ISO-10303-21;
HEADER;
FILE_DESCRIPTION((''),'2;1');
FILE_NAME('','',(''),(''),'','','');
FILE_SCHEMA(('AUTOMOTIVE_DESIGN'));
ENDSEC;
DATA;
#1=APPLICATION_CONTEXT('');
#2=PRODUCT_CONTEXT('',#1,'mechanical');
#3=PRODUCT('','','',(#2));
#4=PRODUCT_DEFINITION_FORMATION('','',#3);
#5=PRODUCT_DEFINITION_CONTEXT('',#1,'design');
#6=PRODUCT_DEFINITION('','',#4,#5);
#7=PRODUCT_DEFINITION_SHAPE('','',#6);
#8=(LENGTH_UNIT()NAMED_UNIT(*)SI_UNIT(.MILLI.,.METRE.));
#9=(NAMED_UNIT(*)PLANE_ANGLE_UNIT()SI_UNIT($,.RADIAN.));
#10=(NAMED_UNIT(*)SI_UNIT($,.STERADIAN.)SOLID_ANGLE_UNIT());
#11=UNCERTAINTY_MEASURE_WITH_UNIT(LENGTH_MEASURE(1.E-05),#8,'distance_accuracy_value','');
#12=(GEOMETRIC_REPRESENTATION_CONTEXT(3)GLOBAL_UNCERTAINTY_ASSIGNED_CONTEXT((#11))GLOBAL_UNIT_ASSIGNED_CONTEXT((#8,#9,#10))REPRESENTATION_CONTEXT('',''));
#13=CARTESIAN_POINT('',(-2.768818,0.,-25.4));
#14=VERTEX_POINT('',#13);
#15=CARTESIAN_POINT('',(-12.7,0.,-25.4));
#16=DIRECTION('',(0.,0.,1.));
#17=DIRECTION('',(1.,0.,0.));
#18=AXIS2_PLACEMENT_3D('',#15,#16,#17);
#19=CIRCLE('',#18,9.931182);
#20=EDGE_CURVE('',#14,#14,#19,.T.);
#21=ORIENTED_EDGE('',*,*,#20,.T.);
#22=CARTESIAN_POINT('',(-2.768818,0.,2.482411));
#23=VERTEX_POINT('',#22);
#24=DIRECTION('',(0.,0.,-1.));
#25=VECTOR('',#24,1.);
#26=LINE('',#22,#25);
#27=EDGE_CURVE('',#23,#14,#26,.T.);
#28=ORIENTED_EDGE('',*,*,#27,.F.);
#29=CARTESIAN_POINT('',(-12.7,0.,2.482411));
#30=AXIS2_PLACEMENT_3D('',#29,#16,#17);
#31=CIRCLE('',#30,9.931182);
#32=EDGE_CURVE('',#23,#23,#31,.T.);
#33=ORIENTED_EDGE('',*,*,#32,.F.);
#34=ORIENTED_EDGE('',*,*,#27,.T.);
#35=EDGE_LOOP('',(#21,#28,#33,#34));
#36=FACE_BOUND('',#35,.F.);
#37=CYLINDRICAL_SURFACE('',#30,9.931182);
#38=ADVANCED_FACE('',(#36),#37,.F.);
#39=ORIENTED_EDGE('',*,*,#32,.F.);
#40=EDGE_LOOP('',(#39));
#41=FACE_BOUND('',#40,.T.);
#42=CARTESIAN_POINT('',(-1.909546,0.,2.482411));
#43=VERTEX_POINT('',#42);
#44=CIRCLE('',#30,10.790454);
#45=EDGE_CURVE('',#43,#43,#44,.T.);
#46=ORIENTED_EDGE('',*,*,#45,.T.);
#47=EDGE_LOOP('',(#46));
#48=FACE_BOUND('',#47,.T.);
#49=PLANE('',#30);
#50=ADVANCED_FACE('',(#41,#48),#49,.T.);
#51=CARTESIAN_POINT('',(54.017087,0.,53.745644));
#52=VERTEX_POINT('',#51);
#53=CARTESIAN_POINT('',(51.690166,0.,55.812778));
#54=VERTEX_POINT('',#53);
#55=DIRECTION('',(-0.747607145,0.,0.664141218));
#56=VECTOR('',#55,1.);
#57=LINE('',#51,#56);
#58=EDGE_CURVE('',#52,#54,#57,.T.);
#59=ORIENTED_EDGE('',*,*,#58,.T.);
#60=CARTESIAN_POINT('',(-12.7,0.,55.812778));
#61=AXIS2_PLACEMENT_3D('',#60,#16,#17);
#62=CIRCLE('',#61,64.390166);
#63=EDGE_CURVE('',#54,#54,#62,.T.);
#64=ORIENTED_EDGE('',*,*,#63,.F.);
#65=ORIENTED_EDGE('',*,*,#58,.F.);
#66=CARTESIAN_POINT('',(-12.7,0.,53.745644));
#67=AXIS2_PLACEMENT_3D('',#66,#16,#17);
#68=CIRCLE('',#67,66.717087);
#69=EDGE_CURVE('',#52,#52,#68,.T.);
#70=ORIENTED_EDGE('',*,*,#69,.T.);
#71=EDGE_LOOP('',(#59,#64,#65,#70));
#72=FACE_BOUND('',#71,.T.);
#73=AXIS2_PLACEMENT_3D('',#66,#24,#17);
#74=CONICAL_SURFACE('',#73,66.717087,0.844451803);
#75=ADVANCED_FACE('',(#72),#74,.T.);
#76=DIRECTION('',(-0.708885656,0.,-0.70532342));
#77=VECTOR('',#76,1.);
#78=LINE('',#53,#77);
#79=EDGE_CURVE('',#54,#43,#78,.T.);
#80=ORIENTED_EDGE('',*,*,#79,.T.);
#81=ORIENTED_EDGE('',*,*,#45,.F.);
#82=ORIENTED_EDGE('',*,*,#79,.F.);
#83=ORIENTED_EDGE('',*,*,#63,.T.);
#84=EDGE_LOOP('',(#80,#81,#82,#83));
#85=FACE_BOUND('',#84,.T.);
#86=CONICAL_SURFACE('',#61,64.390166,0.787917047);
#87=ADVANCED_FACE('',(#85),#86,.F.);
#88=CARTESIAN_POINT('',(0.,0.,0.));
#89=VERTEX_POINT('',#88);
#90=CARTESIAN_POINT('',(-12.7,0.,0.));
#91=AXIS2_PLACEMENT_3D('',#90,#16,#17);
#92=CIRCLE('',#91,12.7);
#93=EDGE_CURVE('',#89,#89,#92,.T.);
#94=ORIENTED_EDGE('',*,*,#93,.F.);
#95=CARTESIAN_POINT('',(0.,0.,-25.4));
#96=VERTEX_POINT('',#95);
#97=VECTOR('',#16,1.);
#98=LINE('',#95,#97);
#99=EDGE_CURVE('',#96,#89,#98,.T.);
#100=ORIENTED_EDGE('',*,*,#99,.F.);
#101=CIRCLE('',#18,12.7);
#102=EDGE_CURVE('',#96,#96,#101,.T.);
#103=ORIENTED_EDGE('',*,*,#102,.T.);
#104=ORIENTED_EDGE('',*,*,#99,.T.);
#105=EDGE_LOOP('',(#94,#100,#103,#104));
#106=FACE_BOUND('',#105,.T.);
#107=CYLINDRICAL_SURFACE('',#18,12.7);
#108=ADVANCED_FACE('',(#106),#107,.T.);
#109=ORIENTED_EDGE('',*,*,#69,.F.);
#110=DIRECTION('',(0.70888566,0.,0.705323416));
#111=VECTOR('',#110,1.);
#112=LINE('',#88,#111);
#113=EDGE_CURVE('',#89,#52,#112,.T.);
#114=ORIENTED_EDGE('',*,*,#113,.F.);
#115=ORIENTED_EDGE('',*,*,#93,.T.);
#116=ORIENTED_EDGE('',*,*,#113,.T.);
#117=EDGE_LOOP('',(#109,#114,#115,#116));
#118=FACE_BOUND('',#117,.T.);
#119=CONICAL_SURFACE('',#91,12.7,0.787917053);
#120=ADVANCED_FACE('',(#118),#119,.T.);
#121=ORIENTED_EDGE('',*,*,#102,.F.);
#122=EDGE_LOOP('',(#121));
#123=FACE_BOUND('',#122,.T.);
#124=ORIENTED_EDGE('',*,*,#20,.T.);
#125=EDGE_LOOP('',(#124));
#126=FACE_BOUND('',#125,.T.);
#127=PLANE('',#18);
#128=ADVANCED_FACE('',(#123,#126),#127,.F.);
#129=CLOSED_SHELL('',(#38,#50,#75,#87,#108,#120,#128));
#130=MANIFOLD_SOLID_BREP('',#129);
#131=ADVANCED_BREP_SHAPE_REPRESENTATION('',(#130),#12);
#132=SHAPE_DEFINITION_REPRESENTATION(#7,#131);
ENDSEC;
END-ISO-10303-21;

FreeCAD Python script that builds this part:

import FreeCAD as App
import Part
import Sketcher
from FreeCAD import Vector
Q = App.Units.Quantity


def add_polygon(sketch, points):
    """Adds a closed chain of lines whose ends are joined by coincident constraints."""
    first, n = sketch.GeometryCount, len(points)
    for a, b in zip(points, points[1:] + points[:1]):
        sketch.addGeometry(Part.LineSegment(App.Vector(*a, 0), App.Vector(*b, 0)), False)
    for i in range(n):
        sketch.addConstraint(Sketcher.Constraint("Coincident", first + i, 2, first + (i + 1) % n, 1))

doc = App.newDocument("Part")
params = doc.addObject("Spreadsheet::Sheet", "Params")
for row, (alias, value) in enumerate([
    ("sketch1_height", "1 in"),
    ("sketch1_length", "3 in"),
    ("sketch1_width", "0.5 in"),
    ("revolution_angle", "360 deg"),
    ("pocket1_length", "2 in"),
], start=1):
    params.set(f"A{row}", alias)
    params.set(f"B{row}", "=" + value)
    params.setAlias(f"B{row}", alias)

body = doc.addObject("PartDesign::Body", "Body")

# Sketch on XZ plane
sketch1 = doc.addObject("Sketcher::SketchObject", "Sketch")
body.addObject(sketch1)
sketch1.AttachmentSupport = (doc.XZ_Plane, [""])
sketch1.MapMode = "FlatFace"
add_polygon(sketch1, [(0, -25.4), (0, 0), (54.017087, 53.745644), (51.690166, 55.812778), (-1.909546, 2.482411), (-12.7, 2.482411), (-12.7, -25.4)])  # lines 0-6
sketch1.addGeometry(Part.LineSegment(Vector(-12.7, -25.4, 0), Vector(-12.7, 55.812778, 0)), True)  # axis
sketch1.addConstraint([
    Sketcher.Constraint("Vertical", 0),
    Sketcher.Constraint("Horizontal", 4),
    Sketcher.Constraint("Vertical", 5),
    Sketcher.Constraint("Horizontal", 6),
    Sketcher.Constraint("Vertical", 7),
    Sketcher.Constraint("Coincident", 0, 2, -1, 1),
    Sketcher.Constraint("Coincident", 7, 1, 5, 2),
    Sketcher.Constraint("DistanceY", 0, 1, 0, 2, Q("1 in")),
    Sketcher.Constraint("Distance", 1, Q("3 in")),
    Sketcher.Constraint("DistanceX", 6, 1, 6, 2, Q("0.5 in")),
    Sketcher.Constraint("DistanceY", 5, 2, 5, 1, Q("27.882411 mm")),
    Sketcher.Constraint("DistanceY", 7, 1, 7, 2, Q("81.212778 mm")),
    Sketcher.Constraint("Distance", 2, Q("3.112492 mm")),
    Sketcher.Constraint("DistanceX", 4, 2, 4, 1, Q("10.790454 mm")),
    Sketcher.Constraint("DistanceY", -1, 1, 2, 2, Q("55.812778 mm")),
    Sketcher.Constraint("DistanceX", 2, 2, 1, 2, Q("2.326921 mm")),
])
sketch1.setExpression("Constraints[14]", "Params.sketch1_height")
sketch1.setExpression("Constraints[15]", "Params.sketch1_length")
sketch1.setExpression("Constraints[16]", "Params.sketch1_width")
revolution = doc.addObject("PartDesign::Revolution", "Revolution")
body.addObject(revolution)
revolution.Profile = sketch1
revolution.ReferenceAxis = (sketch1, ["Axis0"])
revolution.setExpression("Angle", "Params.revolution_angle")

# Sketch on XY plane
sketch2 = doc.addObject("Sketcher::SketchObject", "Sketch001")
body.addObject(sketch2)
sketch2.AttachmentSupport = (doc.XY_Plane, [""])
sketch2.MapMode = "FlatFace"
sketch2.AttachmentOffset = App.Placement(Vector(0, 0, 2.482411), App.Rotation())
sketch2.addGeometry(Part.Circle(Vector(-12.7, 0, 0), Vector(0, 0, 1), 9.931182), False)
sketch2.addConstraint([
    Sketcher.Constraint("PointOnObject", 0, 3, -1),
    Sketcher.Constraint("DistanceX", 0, 3, -1, 1, Q("0.5 in")),
    Sketcher.Constraint("Diameter", 0, Q("19.862364 mm")),
])
pocket1 = doc.addObject("PartDesign::Pocket", "Pocket")
body.addObject(pocket1)
pocket1.Profile = sketch2
pocket1.setExpression("Length", "Params.pocket1_length")

doc.recompute()
